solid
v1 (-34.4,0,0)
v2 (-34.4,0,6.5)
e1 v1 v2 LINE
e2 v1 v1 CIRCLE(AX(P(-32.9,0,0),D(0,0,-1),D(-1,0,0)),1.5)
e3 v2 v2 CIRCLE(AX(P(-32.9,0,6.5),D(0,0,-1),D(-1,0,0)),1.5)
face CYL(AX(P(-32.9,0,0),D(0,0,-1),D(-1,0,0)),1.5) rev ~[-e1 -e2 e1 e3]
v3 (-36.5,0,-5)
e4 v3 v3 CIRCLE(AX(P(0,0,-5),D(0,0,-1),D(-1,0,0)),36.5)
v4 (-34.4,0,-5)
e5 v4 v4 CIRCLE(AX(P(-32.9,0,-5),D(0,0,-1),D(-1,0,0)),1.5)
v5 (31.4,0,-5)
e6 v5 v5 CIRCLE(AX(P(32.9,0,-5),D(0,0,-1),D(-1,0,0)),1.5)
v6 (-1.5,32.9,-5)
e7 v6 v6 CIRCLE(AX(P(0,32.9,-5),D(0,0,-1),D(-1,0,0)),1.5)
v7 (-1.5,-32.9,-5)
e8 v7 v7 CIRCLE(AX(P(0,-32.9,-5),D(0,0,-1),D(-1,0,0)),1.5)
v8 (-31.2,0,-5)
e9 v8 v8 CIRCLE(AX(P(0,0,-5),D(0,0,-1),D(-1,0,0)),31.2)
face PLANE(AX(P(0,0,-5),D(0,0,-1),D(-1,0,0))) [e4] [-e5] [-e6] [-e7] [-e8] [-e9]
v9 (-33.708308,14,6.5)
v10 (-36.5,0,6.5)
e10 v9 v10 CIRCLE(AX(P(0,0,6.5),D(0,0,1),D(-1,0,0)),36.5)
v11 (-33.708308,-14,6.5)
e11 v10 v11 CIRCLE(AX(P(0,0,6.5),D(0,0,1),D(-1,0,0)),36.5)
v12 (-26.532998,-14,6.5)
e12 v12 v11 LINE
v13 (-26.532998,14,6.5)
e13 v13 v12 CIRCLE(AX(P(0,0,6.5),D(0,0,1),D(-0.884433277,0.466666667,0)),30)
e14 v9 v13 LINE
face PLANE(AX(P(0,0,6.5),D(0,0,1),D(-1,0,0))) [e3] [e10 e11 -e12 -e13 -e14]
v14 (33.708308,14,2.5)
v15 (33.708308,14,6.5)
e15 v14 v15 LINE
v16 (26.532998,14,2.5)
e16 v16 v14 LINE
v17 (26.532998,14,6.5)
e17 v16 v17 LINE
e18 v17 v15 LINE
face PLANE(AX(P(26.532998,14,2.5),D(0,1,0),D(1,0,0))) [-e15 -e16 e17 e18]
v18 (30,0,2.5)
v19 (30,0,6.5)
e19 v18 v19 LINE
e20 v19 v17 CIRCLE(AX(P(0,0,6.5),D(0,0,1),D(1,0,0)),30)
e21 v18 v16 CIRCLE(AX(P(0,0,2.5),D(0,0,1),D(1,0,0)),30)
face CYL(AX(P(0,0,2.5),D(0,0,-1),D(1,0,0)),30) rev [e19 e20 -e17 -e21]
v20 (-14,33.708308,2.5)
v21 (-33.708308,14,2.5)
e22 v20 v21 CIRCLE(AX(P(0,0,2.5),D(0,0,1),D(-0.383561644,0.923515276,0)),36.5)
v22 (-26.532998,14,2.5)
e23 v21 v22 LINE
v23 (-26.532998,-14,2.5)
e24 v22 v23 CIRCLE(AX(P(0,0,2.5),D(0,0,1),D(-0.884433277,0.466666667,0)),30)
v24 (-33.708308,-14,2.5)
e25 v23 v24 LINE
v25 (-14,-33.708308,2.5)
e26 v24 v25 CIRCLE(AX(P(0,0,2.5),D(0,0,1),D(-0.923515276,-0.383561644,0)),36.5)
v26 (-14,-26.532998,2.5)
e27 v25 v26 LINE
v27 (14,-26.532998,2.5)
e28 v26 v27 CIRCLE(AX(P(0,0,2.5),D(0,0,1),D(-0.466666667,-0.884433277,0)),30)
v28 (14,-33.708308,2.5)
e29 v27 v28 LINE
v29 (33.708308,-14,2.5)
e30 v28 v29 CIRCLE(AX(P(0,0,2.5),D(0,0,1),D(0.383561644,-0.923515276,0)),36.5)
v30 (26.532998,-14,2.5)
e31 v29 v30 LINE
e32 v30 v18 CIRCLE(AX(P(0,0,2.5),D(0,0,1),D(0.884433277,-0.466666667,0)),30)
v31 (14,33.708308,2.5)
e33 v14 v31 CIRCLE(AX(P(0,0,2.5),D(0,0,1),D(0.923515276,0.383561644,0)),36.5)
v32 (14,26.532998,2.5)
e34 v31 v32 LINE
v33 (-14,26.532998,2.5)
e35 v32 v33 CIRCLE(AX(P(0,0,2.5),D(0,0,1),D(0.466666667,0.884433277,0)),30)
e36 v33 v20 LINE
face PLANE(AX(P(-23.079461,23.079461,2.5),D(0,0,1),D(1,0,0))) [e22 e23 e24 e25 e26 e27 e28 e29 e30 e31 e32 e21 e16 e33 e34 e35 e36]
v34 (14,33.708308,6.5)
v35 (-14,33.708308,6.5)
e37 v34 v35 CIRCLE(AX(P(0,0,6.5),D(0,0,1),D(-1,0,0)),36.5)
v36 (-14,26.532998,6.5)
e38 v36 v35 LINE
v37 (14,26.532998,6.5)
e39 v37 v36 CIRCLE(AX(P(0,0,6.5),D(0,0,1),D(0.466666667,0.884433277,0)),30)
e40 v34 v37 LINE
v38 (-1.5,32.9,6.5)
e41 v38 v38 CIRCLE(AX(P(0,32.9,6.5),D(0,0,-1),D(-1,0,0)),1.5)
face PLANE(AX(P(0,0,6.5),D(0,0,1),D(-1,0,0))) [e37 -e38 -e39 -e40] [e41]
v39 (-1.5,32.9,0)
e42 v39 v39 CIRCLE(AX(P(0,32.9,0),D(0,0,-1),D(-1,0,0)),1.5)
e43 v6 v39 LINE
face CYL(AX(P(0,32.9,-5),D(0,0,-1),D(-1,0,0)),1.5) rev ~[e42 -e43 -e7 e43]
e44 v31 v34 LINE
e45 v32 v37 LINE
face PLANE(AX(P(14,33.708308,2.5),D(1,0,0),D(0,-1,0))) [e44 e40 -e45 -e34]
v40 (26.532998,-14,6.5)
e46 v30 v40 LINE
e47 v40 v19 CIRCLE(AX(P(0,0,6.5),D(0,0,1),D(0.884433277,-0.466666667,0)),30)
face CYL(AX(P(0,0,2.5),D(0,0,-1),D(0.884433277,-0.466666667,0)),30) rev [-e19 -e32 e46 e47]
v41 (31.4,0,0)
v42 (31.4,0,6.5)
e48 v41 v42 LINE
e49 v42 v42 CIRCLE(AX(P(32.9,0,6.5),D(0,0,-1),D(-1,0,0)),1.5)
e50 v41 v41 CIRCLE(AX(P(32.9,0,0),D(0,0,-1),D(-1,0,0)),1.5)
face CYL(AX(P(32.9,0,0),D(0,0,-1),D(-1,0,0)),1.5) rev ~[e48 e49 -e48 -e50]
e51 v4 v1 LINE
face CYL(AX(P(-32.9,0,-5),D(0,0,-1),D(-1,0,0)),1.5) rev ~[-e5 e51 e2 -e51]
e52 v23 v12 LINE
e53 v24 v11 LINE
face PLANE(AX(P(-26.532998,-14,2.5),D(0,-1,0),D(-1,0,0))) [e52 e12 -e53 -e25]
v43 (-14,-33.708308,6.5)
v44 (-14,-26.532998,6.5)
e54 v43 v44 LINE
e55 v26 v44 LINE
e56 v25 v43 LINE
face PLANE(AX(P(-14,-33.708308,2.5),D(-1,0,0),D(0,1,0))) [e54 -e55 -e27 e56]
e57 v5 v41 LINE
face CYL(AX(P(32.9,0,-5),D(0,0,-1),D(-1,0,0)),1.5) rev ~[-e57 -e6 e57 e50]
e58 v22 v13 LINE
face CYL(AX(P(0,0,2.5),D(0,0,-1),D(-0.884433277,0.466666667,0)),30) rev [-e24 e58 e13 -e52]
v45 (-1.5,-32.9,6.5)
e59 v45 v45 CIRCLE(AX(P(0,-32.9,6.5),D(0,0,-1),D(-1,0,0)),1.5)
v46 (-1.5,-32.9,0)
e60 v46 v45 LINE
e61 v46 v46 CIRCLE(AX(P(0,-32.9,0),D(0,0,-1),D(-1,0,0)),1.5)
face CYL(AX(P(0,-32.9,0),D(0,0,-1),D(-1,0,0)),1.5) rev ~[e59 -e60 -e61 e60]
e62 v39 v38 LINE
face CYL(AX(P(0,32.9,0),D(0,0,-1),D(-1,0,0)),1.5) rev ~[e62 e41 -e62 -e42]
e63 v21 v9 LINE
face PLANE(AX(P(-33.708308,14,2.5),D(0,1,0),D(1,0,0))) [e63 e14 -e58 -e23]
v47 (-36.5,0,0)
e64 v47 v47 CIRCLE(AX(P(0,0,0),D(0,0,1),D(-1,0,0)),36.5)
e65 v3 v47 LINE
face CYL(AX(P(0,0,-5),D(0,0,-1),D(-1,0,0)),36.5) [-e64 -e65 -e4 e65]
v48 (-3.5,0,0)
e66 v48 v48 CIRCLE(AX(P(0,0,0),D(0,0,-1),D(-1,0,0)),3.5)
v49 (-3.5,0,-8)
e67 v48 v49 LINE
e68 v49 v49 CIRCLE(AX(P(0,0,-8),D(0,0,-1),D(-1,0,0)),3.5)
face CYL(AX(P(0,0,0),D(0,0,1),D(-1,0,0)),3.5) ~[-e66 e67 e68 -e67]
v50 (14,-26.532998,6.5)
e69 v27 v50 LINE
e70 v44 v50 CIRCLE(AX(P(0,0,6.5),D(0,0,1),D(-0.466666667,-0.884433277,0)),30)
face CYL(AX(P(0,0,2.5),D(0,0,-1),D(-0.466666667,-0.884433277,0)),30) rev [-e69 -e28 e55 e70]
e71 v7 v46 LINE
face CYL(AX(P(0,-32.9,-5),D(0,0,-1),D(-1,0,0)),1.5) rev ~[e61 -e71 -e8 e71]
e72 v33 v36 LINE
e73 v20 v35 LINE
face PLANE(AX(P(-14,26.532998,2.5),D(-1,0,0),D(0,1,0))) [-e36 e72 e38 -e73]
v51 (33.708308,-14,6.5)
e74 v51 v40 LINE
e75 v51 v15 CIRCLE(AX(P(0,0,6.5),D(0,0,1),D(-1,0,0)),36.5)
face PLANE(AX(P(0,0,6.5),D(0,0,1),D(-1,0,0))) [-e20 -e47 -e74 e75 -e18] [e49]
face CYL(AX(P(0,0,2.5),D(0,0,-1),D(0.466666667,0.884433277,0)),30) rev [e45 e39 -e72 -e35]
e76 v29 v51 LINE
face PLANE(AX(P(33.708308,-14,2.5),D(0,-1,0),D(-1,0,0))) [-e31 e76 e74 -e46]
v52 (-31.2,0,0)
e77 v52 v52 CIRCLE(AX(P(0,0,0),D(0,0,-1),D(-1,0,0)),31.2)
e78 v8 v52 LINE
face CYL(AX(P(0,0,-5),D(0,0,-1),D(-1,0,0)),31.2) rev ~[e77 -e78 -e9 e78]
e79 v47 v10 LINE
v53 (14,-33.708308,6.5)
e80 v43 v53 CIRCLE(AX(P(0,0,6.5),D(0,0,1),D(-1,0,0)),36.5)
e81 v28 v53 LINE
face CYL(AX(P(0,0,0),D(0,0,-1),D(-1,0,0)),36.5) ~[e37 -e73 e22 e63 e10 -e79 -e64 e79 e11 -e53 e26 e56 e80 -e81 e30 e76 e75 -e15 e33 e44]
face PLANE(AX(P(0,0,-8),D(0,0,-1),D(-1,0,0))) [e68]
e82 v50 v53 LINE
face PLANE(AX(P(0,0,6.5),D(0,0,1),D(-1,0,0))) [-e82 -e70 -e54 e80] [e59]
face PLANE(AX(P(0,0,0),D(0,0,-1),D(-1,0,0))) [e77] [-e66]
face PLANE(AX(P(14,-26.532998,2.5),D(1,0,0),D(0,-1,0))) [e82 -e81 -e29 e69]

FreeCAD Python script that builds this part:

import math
import FreeCAD as App
import Part
import Sketcher
Q = App.Units.Quantity

doc = App.newDocument("Part")
params = doc.addObject("Spreadsheet::Sheet", "Params")
for row, (alias, value) in enumerate([
    ("sketch1_diameter", "73 mm"),
    ("pad1_length", "6.5 mm"),
    ("sketch2_radius", "30 mm"),
    ("sketch2_radius2", "36.5 mm"),
    ("pocket1_length", "4 mm"),
    ("sketch3_radius", "30 mm"),
    ("pocket2_length", "4 mm"),
    ("sketch4_diameter", "3 mm"),
    ("sketch5_diameter", "73 mm"),
    ("sketch5_diameter2", "3 mm"),
    ("pad2_length", "5 mm"),
    ("sketch6_diameter", "62.4 mm"),
    ("pocket4_length", "5 mm"),
    ("sketch7_diameter", "7 mm"),
    ("pad3_length", "8 mm"),
], start=1):
    params.set(f"A{row}", alias)
    params.set(f"B{row}", "=" + value)
    params.setAlias(f"B{row}", alias)

body = doc.addObject("PartDesign::Body", "Body")

# Sketch on XY plane
sketch1 = body.newObject("Sketcher::SketchObject", "Sketch")
sketch1.AttachmentSupport = (doc.getObject("XY_Plane"), [""])
sketch1.MapMode = "FlatFace"
sketch1.addGeometry(Part.Circle(App.Vector(0, 0, 0), App.Vector(0, 0, 1), 36), False)
sketch1.addConstraint([
    Sketcher.Constraint("Coincident", 0, 3, -1, 1),
    Sketcher.Constraint("Diameter", 0, Q("73 mm")),
])
sketch1.setExpression("Constraints[1]", "Params.sketch1_diameter")
pad1 = body.newObject("PartDesign::Pad", "Pad")
pad1.Profile = sketch1
pad1.setExpression("Length", "Params.pad1_length")

# Sketch on XY plane
sketch2 = body.newObject("Sketcher::SketchObject", "Sketch001")
sketch2.AttachmentSupport = (doc.getObject("XY_Plane"), [""])
sketch2.MapMode = "FlatFace"
sketch2.AttachmentOffset = App.Placement(App.Vector(0, 0, 2.5), App.Rotation())
sketch2.addGeometry([
    Part.LineSegment(App.Vector(14, 34, 0), App.Vector(14, 27, 0)),  # 0
    Part.ArcOfCircle(Part.Circle(App.Vector(0, 0, 0), App.Vector(0, 0, 1), 30), math.radians(28), math.radians(62)),  # 1
    Part.LineSegment(App.Vector(27, 14, 0), App.Vector(34, 14, 0)),  # 2
    Part.ArcOfCircle(Part.Circle(App.Vector(0, 0, 0), App.Vector(0, 0, 1), 37), math.radians(23), math.radians(67)),  # 3
    Part.ArcOfCircle(Part.Circle(App.Vector(0, 0, 0), App.Vector(0, 0, 1), 30), math.radians(-62), math.radians(-28)),  # 4
    Part.LineSegment(App.Vector(14, -27, 0), App.Vector(14, -34, 0)),  # 5
    Part.ArcOfCircle(Part.Circle(App.Vector(0, 0, 0), App.Vector(0, 0, 1), 37), math.radians(-67), math.radians(-23)),  # 6
    Part.LineSegment(App.Vector(34, -14, 0), App.Vector(27, -14, 0)),  # 7
    Part.LineSegment(App.Vector(-14, -34, 0), App.Vector(-14, -27, 0)),  # 8
    Part.ArcOfCircle(Part.Circle(App.Vector(0, 0, 0), App.Vector(0, 0, 1), 30), math.radians(-152), math.radians(-118)),  # 9
    Part.LineSegment(App.Vector(-27, -14, 0), App.Vector(-34, -14, 0)),  # 10
    Part.ArcOfCircle(Part.Circle(App.Vector(0, 0, 0), App.Vector(0, 0, 1), 37), math.radians(-157), math.radians(-113)),  # 11
    Part.LineSegment(App.Vector(-34, 14, 0), App.Vector(-27, 14, 0)),  # 12
    Part.ArcOfCircle(Part.Circle(App.Vector(0, 0, 0), App.Vector(0, 0, 1), 30), math.radians(118), math.radians(152)),  # 13
    Part.LineSegment(App.Vector(-14, 27, 0), App.Vector(-14, 34, 0)),  # 14
    Part.ArcOfCircle(Part.Circle(App.Vector(0, 0, 0), App.Vector(0, 0, 1), 37), math.radians(113), math.radians(157)),  # 15
], False)
sketch2.addConstraint([
    Sketcher.Constraint("Coincident", 0, 2, 1, 2),
    Sketcher.Constraint("Coincident", 1, 1, 2, 1),
    Sketcher.Constraint("Coincident", 2, 2, 3, 1),
    Sketcher.Constraint("Coincident", 3, 2, 0, 1),
    Sketcher.Constraint("Coincident", 4, 1, 5, 1),
    Sketcher.Constraint("Coincident", 5, 2, 6, 1),
    Sketcher.Constraint("Coincident", 6, 2, 7, 1),
    Sketcher.Constraint("Coincident", 7, 2, 4, 2),
    Sketcher.Constraint("Coincident", 8, 2, 9, 2),
    Sketcher.Constraint("Coincident", 9, 1, 10, 1),
    Sketcher.Constraint("Coincident", 10, 2, 11, 1),
    Sketcher.Constraint("Coincident", 11, 2, 8, 1),
    Sketcher.Constraint("Coincident", 12, 2, 13, 2),
    Sketcher.Constraint("Coincident", 13, 1, 14, 1),
    Sketcher.Constraint("Coincident", 14, 2, 15, 1),
    Sketcher.Constraint("Coincident", 15, 2, 12, 1),
    Sketcher.Constraint("Vertical", 0),
    Sketcher.Constraint("Horizontal", 2),
    Sketcher.Constraint("Vertical", 5),
    Sketcher.Constraint("Horizontal", 7),
    Sketcher.Constraint("Vertical", 8),
    Sketcher.Constraint("Horizontal", 10),
    Sketcher.Constraint("Horizontal", 12),
    Sketcher.Constraint("Vertical", 14),
    Sketcher.Constraint("Coincident", 1, 3, -1, 1),
    Sketcher.Constraint("Coincident", 3, 3, -1, 1),
    Sketcher.Constraint("Coincident", 4, 3, -1, 1),
    Sketcher.Constraint("Coincident", 6, 3, -1, 1),
    Sketcher.Constraint("Coincident", 9, 3, -1, 1),
    Sketcher.Constraint("Coincident", 11, 3, -1, 1),
    Sketcher.Constraint("Coincident", 13, 3, -1, 1),
    Sketcher.Constraint("Coincident", 15, 3, -1, 1),
    Sketcher.Constraint("Equal", 1, 4),
    Sketcher.Constraint("Equal", 3, 6),
    Sketcher.Constraint("Equal", 4, 9),
    Sketcher.Constraint("Equal", 6, 11),
    Sketcher.Constraint("Equal", 9, 13),
    Sketcher.Constraint("Equal", 11, 15),
    Sketcher.Constraint("Horizontal", 4, 1, 8, 2),
    Sketcher.Constraint("Horizontal", 7, 2, 9, 1),
    Sketcher.Constraint("Horizontal", 2, 2, 12, 2),
    Sketcher.Constraint("Horizontal", 0, 2, 13, 1),
    Sketcher.Constraint("Vertical", 3, 2, 4, 1),
    Sketcher.Constraint("Vertical", 2, 2, 6, 2),
    Sketcher.Constraint("Equal", 12, 0),
    Sketcher.Constraint("Radius", 1, Q("30 mm")),
    Sketcher.Constraint("Radius", 3, Q("36.5 mm")),
    Sketcher.Constraint("DistanceX", -1, 1, 0, 2, Q("14 mm")),
])
sketch2.setExpression("Constraints[45]", "Params.sketch2_radius")
sketch2.setExpression("Constraints[46]", "Params.sketch2_radius2")
pocket1 = body.newObject("PartDesign::Pocket", "Pocket")
pocket1.Profile = sketch2
pocket1.setExpression("Length", "Params.pocket1_length")
pocket1.Reversed = True

# Sketch on XY plane
sketch3 = body.newObject("Sketcher::SketchObject", "Sketch002")
sketch3.AttachmentSupport = (doc.getObject("XY_Plane"), [""])
sketch3.MapMode = "FlatFace"
sketch3.AttachmentOffset = App.Placement(App.Vector(0, 0, 2.5), App.Rotation())
sketch3.addGeometry([
    Part.ArcOfCircle(Part.Circle(App.Vector(0, 0, 0), App.Vector(0, 0, 1), 30), math.radians(-28), math.radians(0)),  # 0
    Part.ArcOfCircle(Part.Circle(App.Vector(0, 0, 0), App.Vector(0, 0, 1), 30), math.radians(0), math.radians(28)),  # 1
    Part.ArcOfCircle(Part.Circle(App.Vector(0, 0, 0), App.Vector(0, 0, 1), 30), math.radians(28), math.radians(62)),  # 2
    Part.ArcOfCircle(Part.Circle(App.Vector(0, 0, 0), App.Vector(0, 0, 1), 30), math.radians(62), math.radians(118)),  # 3
    Part.ArcOfCircle(Part.Circle(App.Vector(0, 0, 0), App.Vector(0, 0, 1), 30), math.radians(118), math.radians(152)),  # 4
    Part.ArcOfCircle(Part.Circle(App.Vector(0, 0, 0), App.Vector(0, 0, 1), 30), math.radians(152), math.radians(208)),  # 5
    Part.ArcOfCircle(Part.Circle(App.Vector(0, 0, 0), App.Vector(0, 0, 1), 30), math.radians(-152), math.radians(-118)),  # 6
    Part.ArcOfCircle(Part.Circle(App.Vector(0, 0, 0), App.Vector(0, 0, 1), 30), math.radians(-118), math.radians(-62)),  # 7
    Part.ArcOfCircle(Part.Circle(App.Vector(0, 0, 0), App.Vector(0, 0, 1), 30), math.radians(-62), math.radians(-28)),  # 8
], False)
sketch3.addConstraint([
    Sketcher.Constraint("Tangent", 0, 2, 1, 1),
    Sketcher.Constraint("Tangent", 1, 2, 2, 1),
    Sketcher.Constraint("Tangent", 2, 2, 3, 1),
    Sketcher.Constraint("Tangent", 3, 2, 4, 1),
    Sketcher.Constraint("Tangent", 4, 2, 5, 1),
    Sketcher.Constraint("Tangent", 5, 2, 6, 1),
    Sketcher.Constraint("Tangent", 6, 2, 7, 1),
    Sketcher.Constraint("Tangent", 7, 2, 8, 1),
    Sketcher.Constraint("Tangent", 8, 2, 0, 1),
    Sketcher.Constraint("Coincident", 0, 3, -1, 1),
    Sketcher.Constraint("Coincident", 2, 3, -1, 1),
    Sketcher.Constraint("Coincident", 4, 3, -1, 1),
    Sketcher.Constraint("Coincident", 6, 3, -1, 1),
    Sketcher.Constraint("PointOnObject", 0, 2, -1),
    Sketcher.Constraint("Horizontal", 2, 2, 3, 2),
    Sketcher.Constraint("Horizontal", 1, 2, 4, 2),
    Sketcher.Constraint("Horizontal", 6, 2, 7, 2),
    Sketcher.Constraint("Horizontal", 5, 2, 8, 2),
    Sketcher.Constraint("Vertical", 4, 2, 5, 2),
    Sketcher.Constraint("Vertical", 3, 2, 6, 2),
    Sketcher.Constraint("Radius", 0, Q("30 mm")),
    Sketcher.Constraint("DistanceY", -1, 1, 1, 2, Q("14 mm")),
    Sketcher.Constraint("DistanceX", -1, 1, 2, 2, Q("14 mm")),
])
sketch3.setExpression("Constraints[20]", "Params.sketch3_radius")
pocket2 = body.newObject("PartDesign::Pocket", "Pocket001")
pocket2.Profile = sketch3
pocket2.setExpression("Length", "Params.pocket2_length")
pocket2.Reversed = True

# Sketch on XY plane
sketch4 = body.newObject("Sketcher::SketchObject", "Sketch003")
sketch4.AttachmentSupport = (doc.getObject("XY_Plane"), [""])
sketch4.MapMode = "FlatFace"
sketch4.addGeometry([
    Part.Circle(App.Vector(-32.9, 0, 0), App.Vector(0, 0, 1), 1.5),
    Part.Circle(App.Vector(0, -32.9, 0), App.Vector(0, 0, 1), 1.5),
    Part.Circle(App.Vector(0, 32.9, 0), App.Vector(0, 0, 1), 1.5),
    Part.Circle(App.Vector(32.9, 0, 0), App.Vector(0, 0, 1), 1.5),
], False)
sketch4.addConstraint([
    Sketcher.Constraint("Equal", 0, 1),
    Sketcher.Constraint("Equal", 1, 2),
    Sketcher.Constraint("Equal", 2, 3),
    Sketcher.Constraint("Symmetric", 1, 3, 2, 3, -1, 1),
    Sketcher.Constraint("Symmetric", 0, 3, 3, 3, -1, 1),
    Sketcher.Constraint("PointOnObject", 0, 3, -1),
    Sketcher.Constraint("PointOnObject", 1, 3, -2),
    Sketcher.Constraint("Diameter", 0, Q("3 mm")),
    Sketcher.Constraint("DistanceX", 0, 3, -1, 1, Q("32.9 mm")),
    Sketcher.Constraint("DistanceY", 1, 3, -1, 1, Q("32.9 mm")),
])
sketch4.setExpression("Constraints[7]", "Params.sketch4_diameter")
pocket3 = body.newObject("PartDesign::Pocket", "Pocket002")
pocket3.Profile = sketch4
pocket3.Type = "ThroughAll"
pocket3.Reversed = True

# Sketch on XY plane
sketch5 = body.newObject("Sketcher::SketchObject", "Sketch004")
sketch5.AttachmentSupport = (doc.getObject("XY_Plane"), [""])
sketch5.MapMode = "FlatFace"
sketch5.AttachmentOffset = App.Placement(App.Vector(0, 0, -5), App.Rotation())
sketch5.addGeometry([
    Part.Circle(App.Vector(0, 0, 0), App.Vector(0, 0, 1), 36.5),  # 0
    Part.Circle(App.Vector(0, -32.9, 0), App.Vector(0, 0, 1), 1.5),  # 1
    Part.Circle(App.Vector(32.9, 0, 0), App.Vector(0, 0, 1), 1.5),  # 2
    Part.Circle(App.Vector(-32.9, 0, 0), App.Vector(0, 0, 1), 1.5),  # 3
    Part.Circle(App.Vector(0, 32.9, 0), App.Vector(0, 0, 1), 1.5),  # 4
], False)
sketch5.addConstraint([
    Sketcher.Constraint("Coincident", 0, 3, -1, 1),
    Sketcher.Constraint("Equal", 1, 2),
    Sketcher.Constraint("Equal", 2, 3),
    Sketcher.Constraint("Equal", 3, 4),
    Sketcher.Constraint("Symmetric", 2, 3, 3, 3, -1, 1),
    Sketcher.Constraint("Symmetric", 1, 3, 4, 3, -1, 1),
    Sketcher.Constraint("PointOnObject", 1, 3, -2),
    Sketcher.Constraint("PointOnObject", 2, 3, -1),
    Sketcher.Constraint("Diameter", 0, Q("73 mm")),
    Sketcher.Constraint("Diameter", 1, Q("3 mm")),
    Sketcher.Constraint("DistanceY", 1, 3, -1, 1, Q("32.9 mm")),
    Sketcher.Constraint("DistanceX", -1, 1, 2, 3, Q("32.9 mm")),
])
sketch5.setExpression("Constraints[8]", "Params.sketch5_diameter")
sketch5.setExpression("Constraints[9]", "Params.sketch5_diameter2")
pad2 = body.newObject("PartDesign::Pad", "Pad001")
pad2.Profile = sketch5
pad2.setExpression("Length", "Params.pad2_length")

# Sketch on XY plane
sketch6 = body.newObject("Sketcher::SketchObject", "Sketch005")
sketch6.AttachmentSupport = (doc.getObject("XY_Plane"), [""])
sketch6.MapMode = "FlatFace"
sketch6.AttachmentOffset = App.Placement(App.Vector(0, 0, -5), App.Rotation())
sketch6.addGeometry(Part.Circle(App.Vector(0, 0, 0), App.Vector(0, 0, 1), 31), False)
sketch6.addConstraint([
    Sketcher.Constraint("Coincident", 0, 3, -1, 1),
    Sketcher.Constraint("Diameter", 0, Q("62.4 mm")),
])
sketch6.setExpression("Constraints[1]", "Params.sketch6_diameter")
pocket4 = body.newObject("PartDesign::Pocket", "Pocket003")
pocket4.Profile = sketch6
pocket4.setExpression("Length", "Params.pocket4_length")
pocket4.Reversed = True

# Sketch on XY plane
sketch7 = body.newObject("Sketcher::SketchObject", "Sketch006")
sketch7.AttachmentSupport = (doc.getObject("XY_Plane"), [""])
sketch7.MapMode = "FlatFace"
sketch7.addGeometry(Part.Circle(App.Vector(0, 0, 0), App.Vector(0, 0, 1), 3.5), False)
sketch7.addConstraint([
    Sketcher.Constraint("Coincident", 0, 3, -1, 1),
    Sketcher.Constraint("Diameter", 0, Q("7 mm")),
])
sketch7.setExpression("Constraints[1]", "Params.sketch7_diameter")
pad3 = body.newObject("PartDesign::Pad", "Pad002")
pad3.Profile = sketch7
pad3.setExpression("Length", "Params.pad3_length")
pad3.Reversed = True

doc.recompute()
